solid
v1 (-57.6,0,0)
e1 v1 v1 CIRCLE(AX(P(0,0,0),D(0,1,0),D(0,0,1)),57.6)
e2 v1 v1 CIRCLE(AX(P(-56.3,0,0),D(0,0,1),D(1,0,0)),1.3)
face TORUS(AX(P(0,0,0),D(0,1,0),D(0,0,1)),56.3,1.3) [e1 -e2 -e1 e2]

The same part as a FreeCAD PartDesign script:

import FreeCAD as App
import Part
import Sketcher
from FreeCAD import Vector
Q = App.Units.Quantity

doc = App.newDocument("Part")
body = doc.addObject("PartDesign::Body", "Body")

# Sketch on XY plane
sketch1 = body.newObject("Sketcher::SketchObject", "Sketch")
sketch1.AttachmentSupport = (doc.getObject("XY_Plane"), [""])
sketch1.MapMode = "FlatFace"
sketch1.addGeometry(Part.Circle(Vector(-56.3, 0, 0), Vector(0, 0, 1), 1.3), False)
sketch1.addConstraint([
    Sketcher.Constraint("PointOnObject", 0, 3, -1),
    Sketcher.Constraint("Diameter", 0, Q("2.6 mm")),
    Sketcher.Constraint("DistanceX", 0, 3, -1, 1, Q("56.3 mm")),
])

# Sketch on XZ plane
sketch2 = body.newObject("Sketcher::SketchObject", "Sketch001")
sketch2.AttachmentSupport = (doc.getObject("XZ_Plane"), [""])
sketch2.MapMode = "FlatFace"
sketch2.addGeometry(Part.Circle(Vector(0, 0, 0), Vector(0, 0, 1), 56), False)
sketch2.addConstraint([
    Sketcher.Constraint("Coincident", 0, 3, -1, 1),
    Sketcher.Constraint("Diameter", 0, Q("112.6 mm")),
])
doc.recompute()

additivepipe = body.newObject("PartDesign::AdditivePipe", "AdditivePipe")
additivepipe.Profile = sketch1
additivepipe.Spine = (sketch2, ["Edge1"])

doc.recompute()
